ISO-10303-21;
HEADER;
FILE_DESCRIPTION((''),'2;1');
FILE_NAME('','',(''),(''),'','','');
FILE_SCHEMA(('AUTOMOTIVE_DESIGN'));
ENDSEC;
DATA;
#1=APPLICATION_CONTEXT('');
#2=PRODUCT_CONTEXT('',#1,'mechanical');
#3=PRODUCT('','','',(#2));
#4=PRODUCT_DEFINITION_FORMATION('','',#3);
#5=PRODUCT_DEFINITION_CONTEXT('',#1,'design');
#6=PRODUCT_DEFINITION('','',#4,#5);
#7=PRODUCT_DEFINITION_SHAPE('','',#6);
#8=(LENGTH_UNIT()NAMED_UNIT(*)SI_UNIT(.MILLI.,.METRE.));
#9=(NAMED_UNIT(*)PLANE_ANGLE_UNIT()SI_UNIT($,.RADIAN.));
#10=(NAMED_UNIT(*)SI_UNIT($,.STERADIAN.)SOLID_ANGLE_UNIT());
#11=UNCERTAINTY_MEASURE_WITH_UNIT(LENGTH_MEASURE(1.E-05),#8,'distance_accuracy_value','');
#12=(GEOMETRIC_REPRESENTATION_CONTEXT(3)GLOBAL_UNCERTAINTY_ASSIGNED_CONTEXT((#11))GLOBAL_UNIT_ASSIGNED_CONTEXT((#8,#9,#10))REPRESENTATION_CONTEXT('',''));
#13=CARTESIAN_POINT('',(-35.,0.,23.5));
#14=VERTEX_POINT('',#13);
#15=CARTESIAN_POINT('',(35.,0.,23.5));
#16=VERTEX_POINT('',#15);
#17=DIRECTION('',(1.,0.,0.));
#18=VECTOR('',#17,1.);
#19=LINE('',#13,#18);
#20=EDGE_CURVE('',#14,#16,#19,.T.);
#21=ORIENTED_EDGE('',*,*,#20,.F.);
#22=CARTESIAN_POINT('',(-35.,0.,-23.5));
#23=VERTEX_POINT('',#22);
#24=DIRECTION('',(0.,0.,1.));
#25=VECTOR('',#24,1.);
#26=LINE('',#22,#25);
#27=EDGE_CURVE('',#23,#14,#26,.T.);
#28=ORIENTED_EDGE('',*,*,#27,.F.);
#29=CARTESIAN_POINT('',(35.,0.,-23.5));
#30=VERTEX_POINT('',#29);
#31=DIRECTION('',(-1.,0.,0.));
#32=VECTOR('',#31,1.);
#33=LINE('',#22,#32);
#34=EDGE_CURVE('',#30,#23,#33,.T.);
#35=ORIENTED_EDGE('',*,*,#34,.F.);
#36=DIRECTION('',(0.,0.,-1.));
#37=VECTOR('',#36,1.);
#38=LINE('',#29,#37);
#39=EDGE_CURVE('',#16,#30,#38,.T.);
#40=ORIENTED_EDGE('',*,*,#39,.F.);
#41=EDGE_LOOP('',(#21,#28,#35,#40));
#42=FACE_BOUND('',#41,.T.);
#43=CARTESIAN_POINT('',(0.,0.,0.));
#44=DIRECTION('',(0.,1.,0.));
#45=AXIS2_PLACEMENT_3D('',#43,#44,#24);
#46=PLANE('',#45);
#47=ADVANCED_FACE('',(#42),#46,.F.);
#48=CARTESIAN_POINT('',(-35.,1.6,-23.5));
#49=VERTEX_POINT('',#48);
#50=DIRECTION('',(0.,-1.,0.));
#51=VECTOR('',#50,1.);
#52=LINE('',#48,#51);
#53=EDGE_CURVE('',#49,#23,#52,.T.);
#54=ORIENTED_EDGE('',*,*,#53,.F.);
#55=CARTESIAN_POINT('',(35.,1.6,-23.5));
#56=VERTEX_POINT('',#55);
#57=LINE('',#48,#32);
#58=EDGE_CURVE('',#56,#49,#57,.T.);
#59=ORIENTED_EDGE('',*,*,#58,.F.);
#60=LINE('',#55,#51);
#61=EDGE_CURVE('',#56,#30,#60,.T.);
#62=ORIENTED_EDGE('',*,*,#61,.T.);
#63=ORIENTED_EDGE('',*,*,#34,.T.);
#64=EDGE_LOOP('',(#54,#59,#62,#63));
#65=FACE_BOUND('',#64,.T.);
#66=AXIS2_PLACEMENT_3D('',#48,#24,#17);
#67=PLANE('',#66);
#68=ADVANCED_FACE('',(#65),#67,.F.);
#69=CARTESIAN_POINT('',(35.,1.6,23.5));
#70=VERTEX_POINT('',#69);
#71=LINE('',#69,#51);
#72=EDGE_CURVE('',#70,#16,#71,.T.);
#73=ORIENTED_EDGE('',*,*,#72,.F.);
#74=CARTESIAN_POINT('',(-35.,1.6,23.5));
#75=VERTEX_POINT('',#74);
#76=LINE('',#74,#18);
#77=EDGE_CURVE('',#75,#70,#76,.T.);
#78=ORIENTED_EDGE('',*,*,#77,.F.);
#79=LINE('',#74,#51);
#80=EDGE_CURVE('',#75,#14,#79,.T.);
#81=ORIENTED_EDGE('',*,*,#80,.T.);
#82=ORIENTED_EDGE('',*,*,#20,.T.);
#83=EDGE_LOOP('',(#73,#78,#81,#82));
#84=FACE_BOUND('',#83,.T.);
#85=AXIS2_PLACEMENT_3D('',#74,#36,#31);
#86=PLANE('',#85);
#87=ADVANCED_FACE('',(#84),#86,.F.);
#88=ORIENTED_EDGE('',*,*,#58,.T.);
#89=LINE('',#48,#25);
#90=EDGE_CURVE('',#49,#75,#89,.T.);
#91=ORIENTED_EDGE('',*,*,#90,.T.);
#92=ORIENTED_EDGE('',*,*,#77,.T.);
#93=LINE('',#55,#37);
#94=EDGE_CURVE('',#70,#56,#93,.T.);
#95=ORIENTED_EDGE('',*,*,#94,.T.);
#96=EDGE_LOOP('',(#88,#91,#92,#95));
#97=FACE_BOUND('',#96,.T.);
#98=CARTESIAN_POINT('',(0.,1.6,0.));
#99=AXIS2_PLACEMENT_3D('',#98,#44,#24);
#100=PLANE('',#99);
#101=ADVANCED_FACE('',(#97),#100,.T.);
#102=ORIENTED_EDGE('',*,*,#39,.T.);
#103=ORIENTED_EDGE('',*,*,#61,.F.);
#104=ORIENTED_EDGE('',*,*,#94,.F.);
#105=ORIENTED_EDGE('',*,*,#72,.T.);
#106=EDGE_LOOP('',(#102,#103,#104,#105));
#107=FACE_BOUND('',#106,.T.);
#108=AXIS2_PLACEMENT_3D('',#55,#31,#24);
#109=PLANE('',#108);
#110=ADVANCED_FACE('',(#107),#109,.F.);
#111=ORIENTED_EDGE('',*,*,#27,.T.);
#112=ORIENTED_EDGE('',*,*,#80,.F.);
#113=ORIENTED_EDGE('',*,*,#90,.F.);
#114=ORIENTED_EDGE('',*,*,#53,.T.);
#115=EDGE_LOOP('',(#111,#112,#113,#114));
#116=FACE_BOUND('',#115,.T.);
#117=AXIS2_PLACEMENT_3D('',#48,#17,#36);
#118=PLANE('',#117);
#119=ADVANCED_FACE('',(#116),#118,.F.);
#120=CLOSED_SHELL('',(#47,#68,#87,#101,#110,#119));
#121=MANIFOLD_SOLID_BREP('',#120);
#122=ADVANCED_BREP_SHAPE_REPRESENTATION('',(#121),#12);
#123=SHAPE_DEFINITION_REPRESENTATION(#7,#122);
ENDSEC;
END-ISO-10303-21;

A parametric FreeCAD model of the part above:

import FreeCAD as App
import Part
import Sketcher
Q = App.Units.Quantity


def add_polygon(sketch, points):
    """Adds a closed chain of lines whose ends are joined by coincident constraints."""
    first, n = sketch.GeometryCount, len(points)
    for a, b in zip(points, points[1:] + points[:1]):
        sketch.addGeometry(Part.LineSegment(App.Vector(*a, 0), App.Vector(*b, 0)), False)
    for i in range(n):
        sketch.addConstraint(Sketcher.Constraint("Coincident", first + i, 2, first + (i + 1) % n, 1))

doc = App.newDocument("Part")
params = doc.addObject("Spreadsheet::Sheet", "Params")
for row, (alias, value) in enumerate([
    ("sketch1_width", "70 mm"),
    ("sketch1_height", "47 mm"),
    ("pad1_length", "1.6 mm"),
], start=1):
    params.set(f"A{row}", alias)
    params.set(f"B{row}", "=" + value)
    params.setAlias(f"B{row}", alias)

body = doc.addObject("PartDesign::Body", "Body")

# Sketch on XZ plane
sketch1 = doc.addObject("Sketcher::SketchObject", "Sketch")
body.addObject(sketch1)
sketch1.AttachmentSupport = (doc.XZ_Plane, [""])
sketch1.MapMode = "FlatFace"
add_polygon(sketch1, [(-35, -24), (-35, 24), (35, 24), (35, -24)])  # lines 0-3
sketch1.addConstraint([
    Sketcher.Constraint("Vertical", 0),
    Sketcher.Constraint("Horizontal", 1),
    Sketcher.Constraint("Vertical", 2),
    Sketcher.Constraint("Horizontal", 3),
    Sketcher.Constraint("Symmetric", 0, 2, 2, 2, -1, 1),
    Sketcher.Constraint("DistanceX", 1, 1, 1, 2, Q("70 mm")),
    Sketcher.Constraint("DistanceY", 0, 1, 0, 2, Q("47 mm")),
])
sketch1.setExpression("Constraints[9]", "Params.sketch1_width")
sketch1.setExpression("Constraints[10]", "Params.sketch1_height")
pad1 = doc.addObject("PartDesign::Pad", "Pad")
body.addObject(pad1)
pad1.Profile = sketch1
pad1.setExpression("Length", "Params.pad1_length")
pad1.Reversed = True

doc.recompute()
